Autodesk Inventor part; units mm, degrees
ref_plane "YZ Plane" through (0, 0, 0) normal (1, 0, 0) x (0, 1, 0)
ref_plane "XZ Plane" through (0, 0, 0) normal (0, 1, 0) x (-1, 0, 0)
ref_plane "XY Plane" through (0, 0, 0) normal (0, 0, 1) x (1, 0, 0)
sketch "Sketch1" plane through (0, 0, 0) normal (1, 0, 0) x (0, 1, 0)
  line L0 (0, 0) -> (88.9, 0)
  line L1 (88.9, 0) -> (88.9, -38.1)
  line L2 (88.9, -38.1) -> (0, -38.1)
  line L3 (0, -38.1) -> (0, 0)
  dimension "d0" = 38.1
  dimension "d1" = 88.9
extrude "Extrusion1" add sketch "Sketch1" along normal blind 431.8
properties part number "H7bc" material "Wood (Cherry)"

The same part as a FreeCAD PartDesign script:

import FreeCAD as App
import Part
import Sketcher
from FreeCAD import Vector
Q = App.Units.Quantity


def add_polygon(sketch, points):
    """Adds a closed chain of lines whose ends are joined by coincident constraints."""
    first, n = sketch.GeometryCount, len(points)
    for a, b in zip(points, points[1:] + points[:1]):
        sketch.addGeometry(Part.LineSegment(App.Vector(*a, 0), App.Vector(*b, 0)), False)
    for i in range(n):
        sketch.addConstraint(Sketcher.Constraint("Coincident", first + i, 2, first + (i + 1) % n, 1))

doc = App.newDocument("Part")
params = doc.addObject("Spreadsheet::Sheet", "Params")
for row, (alias, value) in enumerate([
    ("sketch1_width", "3.5 in"),
    ("sketch1_height", "1.5 in"),
    ("pad1_length", "17 in"),
], start=1):
    params.set(f"A{row}", alias)
    params.set(f"B{row}", "=" + value)
    params.setAlias(f"B{row}", alias)

body = doc.addObject("PartDesign::Body", "Body")

sketch1 = body.newObject("Sketcher::SketchObject", "Sketch")
sketch1.AttachmentSupport = (doc.getObject("YZ_Plane"), [""])
sketch1.MapMode = "FlatFace"
add_polygon(sketch1, [(89, 0), (0, 0), (0, -38), (89, -38)])
sketch1.addConstraint([
    Sketcher.Constraint("Horizontal", 0),
    Sketcher.Constraint("Vertical", 1),
    Sketcher.Constraint("Horizontal", 2),
    Sketcher.Constraint("Vertical", 3),
    Sketcher.Constraint("Coincident", 0, 2, -1, 1),
    Sketcher.Constraint("DistanceX", 0, 2, 0, 1, Q("3.5 in")),
    Sketcher.Constraint("DistanceY", 1, 2, 1, 1, Q("1.5 in")),
])
sketch1.setExpression("Constraints[9]", "Params.sketch1_width")
sketch1.setExpression("Constraints[10]", "Params.sketch1_height")
pad1 = body.newObject("PartDesign::Pad", "Pad")
pad1.Profile = sketch1
pad1.setExpression("Length", "Params.pad1_length")

doc.recompute()
